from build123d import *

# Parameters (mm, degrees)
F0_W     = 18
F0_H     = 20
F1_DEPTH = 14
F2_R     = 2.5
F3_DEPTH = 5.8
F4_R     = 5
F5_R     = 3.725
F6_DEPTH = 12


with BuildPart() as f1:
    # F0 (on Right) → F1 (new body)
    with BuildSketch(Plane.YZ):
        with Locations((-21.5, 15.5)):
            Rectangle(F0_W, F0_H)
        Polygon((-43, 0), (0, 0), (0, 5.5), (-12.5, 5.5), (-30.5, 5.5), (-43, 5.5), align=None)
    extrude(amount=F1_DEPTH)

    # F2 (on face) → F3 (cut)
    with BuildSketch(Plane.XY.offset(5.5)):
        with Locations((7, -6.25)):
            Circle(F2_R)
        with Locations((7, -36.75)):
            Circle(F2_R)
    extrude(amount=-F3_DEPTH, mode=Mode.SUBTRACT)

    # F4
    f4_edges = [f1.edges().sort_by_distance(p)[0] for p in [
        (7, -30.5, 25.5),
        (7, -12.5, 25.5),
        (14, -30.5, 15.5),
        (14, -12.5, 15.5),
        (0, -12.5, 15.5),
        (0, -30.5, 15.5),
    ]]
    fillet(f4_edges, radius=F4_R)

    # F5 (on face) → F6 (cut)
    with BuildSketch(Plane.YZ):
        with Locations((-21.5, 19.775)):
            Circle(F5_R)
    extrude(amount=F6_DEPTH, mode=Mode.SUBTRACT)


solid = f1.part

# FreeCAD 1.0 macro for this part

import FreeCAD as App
import Part
import Sketcher

V = App.Vector


def edges_at(feature, points):
    """Names of the edges that pass closest to the given points."""
    edges = feature.Shape.Edges
    near = lambda p: min(range(len(edges)), key=lambda i: edges[i].distToShape(Part.Vertex(*p))[0])
    return sorted({f"Edge{near(p) + 1}" for p in points})

doc = App.newDocument("Part")
body = doc.addObject("PartDesign::Body", "Body")

# Sketch on YZ plane
sketch1 = body.newObject("Sketcher::SketchObject", "Sketch")
sketch1.AttachmentSupport = (doc.getObject("YZ_Plane"), [""])
sketch1.MapMode = "FlatFace"
sketch1.addGeometry(Part.LineSegment(V(-30, 26, 0), V(-30, 6, 0)), False)
sketch1.addGeometry(Part.LineSegment(V(-30, 6, 0), V(-43, 6, 0)), False)
sketch1.addGeometry(Part.LineSegment(V(-43, 6, 0), V(-43, 0, 0)), False)
sketch1.addGeometry(Part.LineSegment(V(-43, 0, 0), V(0, 0, 0)), False)
sketch1.addGeometry(Part.LineSegment(V(0, 0, 0), V(0, 6, 0)), False)
sketch1.addGeometry(Part.LineSegment(V(0, 6, 0), V(-12, 6, 0)), False)
sketch1.addGeometry(Part.LineSegment(V(-12, 6, 0), V(-12, 26, 0)), False)
sketch1.addGeometry(Part.LineSegment(V(-12, 26, 0), V(-30, 26, 0)), False)
sketch1.addConstraint(Sketcher.Constraint("Coincident", 0, 2, 1, 1))
sketch1.addConstraint(Sketcher.Constraint("Coincident", 1, 2, 2, 1))
sketch1.addConstraint(Sketcher.Constraint("Coincident", 2, 2, 3, 1))
sketch1.addConstraint(Sketcher.Constraint("Coincident", 3, 2, 4, 1))
sketch1.addConstraint(Sketcher.Constraint("Coincident", 4, 2, 5, 1))
sketch1.addConstraint(Sketcher.Constraint("Coincident", 5, 2, 6, 1))
sketch1.addConstraint(Sketcher.Constraint("Coincident", 6, 2, 7, 1))
sketch1.addConstraint(Sketcher.Constraint("Coincident", 7, 2, 0, 1))
sketch1.addConstraint(Sketcher.Constraint("Vertical", 0))
sketch1.addConstraint(Sketcher.Constraint("Horizontal", 1))
sketch1.addConstraint(Sketcher.Constraint("Vertical", 2))
sketch1.addConstraint(Sketcher.Constraint("Horizontal", 3))
sketch1.addConstraint(Sketcher.Constraint("Vertical", 4))
sketch1.addConstraint(Sketcher.Constraint("Horizontal", 5))
sketch1.addConstraint(Sketcher.Constraint("Vertical", 6))
sketch1.addConstraint(Sketcher.Constraint("Horizontal", 7))
sketch1.addConstraint(Sketcher.Constraint("Coincident", 3, 2, -1, 1))
sketch1.addConstraint(Sketcher.Constraint("Horizontal", 1, 2, 4, 2))
sketch1.addConstraint(Sketcher.Constraint("Equal", 1, 5))
sketch1.addConstraint(Sketcher.Constraint("DistanceX", 3, 1, 3, 2, 43.0))
sketch1.addConstraint(Sketcher.Constraint("DistanceX", 7, 2, 7, 1, 18.0))
sketch1.addConstraint(Sketcher.Constraint("DistanceY", 0, 2, 0, 1, 20.0))
sketch1.addConstraint(Sketcher.Constraint("DistanceY", 2, 2, 2, 1, 5.5))
pad1 = body.newObject("PartDesign::Pad", "Pad")
pad1.Profile = sketch1
pad1.Length = 14

# Sketch on XY plane
sketch2 = body.newObject("Sketcher::SketchObject", "Sketch001")
sketch2.AttachmentSupport = (doc.getObject("XY_Plane"), [""])
sketch2.MapMode = "FlatFace"
sketch2.AttachmentOffset = App.Placement(V(0, 0, 5.5), App.Rotation())
sketch2.addGeometry(Part.Circle(V(7, -6.2, 0), V(0, 0, 1), 2.5), False)
sketch2.addGeometry(Part.Circle(V(7, -36.8, 0), V(0, 0, 1), 2.5), False)
sketch2.addConstraint(Sketcher.Constraint("Equal", 0, 1))
sketch2.addConstraint(Sketcher.Constraint("Vertical", 0, 3, 1, 3))
sketch2.addConstraint(Sketcher.Constraint("Diameter", 0, 5.0))
sketch2.addConstraint(Sketcher.Constraint("DistanceX", -1, 1, 0, 3, 7.0))
sketch2.addConstraint(Sketcher.Constraint("DistanceY", 1, 3, 0, 3, 30.5))
sketch2.addConstraint(Sketcher.Constraint("DistanceY", 0, 3, -1, 1, 6.25))
pocket1 = body.newObject("PartDesign::Pocket", "Pocket")
pocket1.Profile = sketch2
pocket1.Length = 5.8
doc.recompute()

fillet = body.newObject("PartDesign::Fillet", "Fillet")
fillet.Base = (pocket1, edges_at(pocket1, [
    (7, -30.5, 25.5),
    (7, -12.5, 25.5),
    (14, -30.5, 15.5),
    (14, -12.5, 15.5),
    (0, -12.5, 15.5),
    (0, -30.5, 15.5),
]))
fillet.Radius = 5

# Sketch on YZ plane
sketch3 = body.newObject("Sketcher::SketchObject", "Sketch002")
sketch3.AttachmentSupport = (doc.getObject("YZ_Plane"), [""])
sketch3.MapMode = "FlatFace"
sketch3.addGeometry(Part.Circle(V(-21.5, 19.8, 0), V(0, 0, 1), 3.7), False)
sketch3.addConstraint(Sketcher.Constraint("Diameter", 0, 7.45))
sketch3.addConstraint(Sketcher.Constraint("DistanceX", 0, 3, -1, 1, 21.5))
sketch3.addConstraint(Sketcher.Constraint("DistanceY", -1, 1, 0, 3, 19.775))
pocket2 = body.newObject("PartDesign::Pocket", "Pocket001")
pocket2.Profile = sketch3
pocket2.Length = 12
pocket2.Reversed = True

doc.recompute()
